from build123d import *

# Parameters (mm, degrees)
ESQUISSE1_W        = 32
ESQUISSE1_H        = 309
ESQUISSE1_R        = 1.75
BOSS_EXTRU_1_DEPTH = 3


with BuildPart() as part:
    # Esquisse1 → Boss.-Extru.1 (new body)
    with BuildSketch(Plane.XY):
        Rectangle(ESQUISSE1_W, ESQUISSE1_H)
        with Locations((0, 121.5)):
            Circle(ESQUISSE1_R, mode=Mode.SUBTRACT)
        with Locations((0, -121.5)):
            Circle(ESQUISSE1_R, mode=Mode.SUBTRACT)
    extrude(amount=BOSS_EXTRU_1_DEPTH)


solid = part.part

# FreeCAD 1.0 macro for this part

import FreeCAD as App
import Part
import Sketcher


def add_polygon(sketch, points):
    """Adds a closed chain of lines whose ends are joined by coincident constraints."""
    first, n = sketch.GeometryCount, len(points)
    for a, b in zip(points, points[1:] + points[:1]):
        sketch.addGeometry(Part.LineSegment(App.Vector(*a, 0), App.Vector(*b, 0)), False)
    for i in range(n):
        sketch.addConstraint(Sketcher.Constraint("Coincident", first + i, 2, first + (i + 1) % n, 1))

doc = App.newDocument("Part")
params = doc.addObject("Spreadsheet::Sheet", "Params")
for row, (alias, value) in enumerate([
    ("sketch1_diameter", "3.5 mm"),
    ("sketch1_width", "32 mm"),
    ("sketch1_height", "309 mm"),
    ("pad1_length", "3 mm"),
], start=1):
    params.set(f"A{row}", alias)
    params.set(f"B{row}", "=" + value)
    params.setAlias(f"B{row}", alias)

body = doc.addObject("PartDesign::Body", "Body")

# Sketch on XY plane
sketch1 = body.newObject("Sketcher::SketchObject", "Sketch")
sketch1.AttachmentSupport = (doc.getObject("XY_Plane"), [""])
sketch1.MapMode = "FlatFace"
add_polygon(sketch1, [(-16, 154.5), (-16, -154.5), (16, -154.5), (16, 154.5)])  # lines 0-3
sketch1.addGeometry(Part.Circle(App.Vector(0, -121.5, 0), App.Vector(0, 0, 1), 1.75), False)  # 4
sketch1.addGeometry(Part.Circle(App.Vector(0, 121.5, 0), App.Vector(0, 0, 1), 1.75), False)  # 5
sketch1.addConstraint(Sketcher.Constraint("Vertical", 0))
sketch1.addConstraint(Sketcher.Constraint("Horizontal", 1))
sketch1.addConstraint(Sketcher.Constraint("Vertical", 2))
sketch1.addConstraint(Sketcher.Constraint("Horizontal", 3))
sketch1.addConstraint(Sketcher.Constraint("Equal", 4, 5))
sketch1.addConstraint(Sketcher.Constraint("Symmetric", 4, 3, 5, 3, -1, 1))
sketch1.addConstraint(Sketcher.Constraint("Symmetric", 0, 2, 2, 2, -1, 1))
sketch1.addConstraint(Sketcher.Constraint("PointOnObject", 4, 3, -2))
sketch1.addConstraint(Sketcher.Constraint("Diameter", 4, 3.5))
sketch1.addConstraint(Sketcher.Constraint("DistanceX", 1, 1, 1, 2, 32.0))
sketch1.addConstraint(Sketcher.Constraint("DistanceY", 0, 2, 0, 1, 309.0))
sketch1.addConstraint(Sketcher.Constraint("DistanceY", 4, 3, 5, 3, 243.0))
sketch1.setExpression("Constraints[12]", "Params.sketch1_diameter")
sketch1.setExpression("Constraints[13]", "Params.sketch1_width")
sketch1.setExpression("Constraints[14]", "Params.sketch1_height")
pad1 = body.newObject("PartDesign::Pad", "Pad")
pad1.Profile = sketch1
pad1.setExpression("Length", "Params.pad1_length")

doc.recompute()
